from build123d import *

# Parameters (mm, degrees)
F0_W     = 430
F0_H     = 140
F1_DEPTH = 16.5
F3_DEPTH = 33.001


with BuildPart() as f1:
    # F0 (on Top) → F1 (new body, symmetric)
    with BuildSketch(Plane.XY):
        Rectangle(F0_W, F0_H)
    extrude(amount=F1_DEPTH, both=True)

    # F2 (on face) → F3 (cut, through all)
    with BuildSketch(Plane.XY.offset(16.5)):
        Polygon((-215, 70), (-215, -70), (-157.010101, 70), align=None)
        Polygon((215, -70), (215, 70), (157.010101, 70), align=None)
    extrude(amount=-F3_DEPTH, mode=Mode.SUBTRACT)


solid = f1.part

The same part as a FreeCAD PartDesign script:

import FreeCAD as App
import Part
import Sketcher

V = App.Vector
Q = App.Units.Quantity

doc = App.newDocument("Part")
body = doc.addObject("PartDesign::Body", "Body")

# Sketch on XY plane
sketch1 = body.newObject("Sketcher::SketchObject", "Sketch")
sketch1.AttachmentSupport = (doc.getObject("XY_Plane"), [""])
sketch1.MapMode = "FlatFace"
sketch1.addGeometry(Part.LineSegment(V(-215, 70, 0), V(-215, -70, 0)), False)
sketch1.addGeometry(Part.LineSegment(V(-215, -70, 0), V(215, -70, 0)), False)
sketch1.addGeometry(Part.LineSegment(V(215, -70, 0), V(215, 70, 0)), False)
sketch1.addGeometry(Part.LineSegment(V(215, 70, 0), V(-215, 70, 0)), False)
sketch1.addConstraint(Sketcher.Constraint("Coincident", 0, 2, 1, 1))
sketch1.addConstraint(Sketcher.Constraint("Coincident", 1, 2, 2, 1))
sketch1.addConstraint(Sketcher.Constraint("Coincident", 2, 2, 3, 1))
sketch1.addConstraint(Sketcher.Constraint("Coincident", 3, 2, 0, 1))
sketch1.addConstraint(Sketcher.Constraint("Vertical", 0))
sketch1.addConstraint(Sketcher.Constraint("Horizontal", 1))
sketch1.addConstraint(Sketcher.Constraint("Vertical", 2))
sketch1.addConstraint(Sketcher.Constraint("Horizontal", 3))
sketch1.addConstraint(Sketcher.Constraint("Symmetric", 0, 2, 2, 2, -1, 1))
sketch1.addConstraint(Sketcher.Constraint("DistanceX", 1, 1, 1, 2, Q("430 mm")))
sketch1.addConstraint(Sketcher.Constraint("DistanceY", 0, 2, 0, 1, Q("140 mm")))
pad1 = body.newObject("PartDesign::Pad", "Pad")
pad1.Profile = sketch1
pad1.Length = 33
pad1.Midplane = True

# Sketch on XY plane
sketch2 = body.newObject("Sketcher::SketchObject", "Sketch001")
sketch2.AttachmentSupport = (doc.getObject("XY_Plane"), [""])
sketch2.MapMode = "FlatFace"
sketch2.AttachmentOffset = App.Placement(V(0, 0, 16.5), App.Rotation())
sketch2.addGeometry(Part.LineSegment(V(-215, 70, 0), V(-215, -70, 0)), False)
sketch2.addGeometry(Part.LineSegment(V(-215, -70, 0), V(-157.010101, 70, 0)), False)
sketch2.addGeometry(Part.LineSegment(V(-157.010101, 70, 0), V(-215, 70, 0)), False)
sketch2.addGeometry(Part.LineSegment(V(215, -70, 0), V(215, 70, 0)), False)
sketch2.addGeometry(Part.LineSegment(V(215, 70, 0), V(157.010101, 70, 0)), False)
sketch2.addGeometry(Part.LineSegment(V(157.010101, 70, 0), V(215, -70, 0)), False)
sketch2.addConstraint(Sketcher.Constraint("Coincident", 0, 2, 1, 1))
sketch2.addConstraint(Sketcher.Constraint("Coincident", 1, 2, 2, 1))
sketch2.addConstraint(Sketcher.Constraint("Coincident", 2, 2, 0, 1))
sketch2.addConstraint(Sketcher.Constraint("Coincident", 3, 2, 4, 1))
sketch2.addConstraint(Sketcher.Constraint("Coincident", 4, 2, 5, 1))
sketch2.addConstraint(Sketcher.Constraint("Coincident", 5, 2, 3, 1))
sketch2.addConstraint(Sketcher.Constraint("Vertical", 0))
sketch2.addConstraint(Sketcher.Constraint("Horizontal", 2))
sketch2.addConstraint(Sketcher.Constraint("Vertical", 3))
sketch2.addConstraint(Sketcher.Constraint("Horizontal", 4))
sketch2.addConstraint(Sketcher.Constraint("Symmetric", 0, 2, 3, 2, -1, 1))
sketch2.addConstraint(Sketcher.Constraint("Symmetric", 1, 2, 4, 2, -2))
sketch2.addConstraint(Sketcher.Constraint("Horizontal", 0, 2, 5, 2))
sketch2.addConstraint(Sketcher.Constraint("DistanceY", 0, 2, 0, 1, Q("140 mm")))
sketch2.addConstraint(Sketcher.Constraint("DistanceX", 0, 2, -1, 1, Q("215 mm")))
sketch2.addConstraint(Sketcher.Constraint("Angle", 1, Q("67.5 deg")))
pocket1 = body.newObject("PartDesign::Pocket", "Pocket")
pocket1.Profile = sketch2
pocket1.Type = "ThroughAll"

doc.recompute()
